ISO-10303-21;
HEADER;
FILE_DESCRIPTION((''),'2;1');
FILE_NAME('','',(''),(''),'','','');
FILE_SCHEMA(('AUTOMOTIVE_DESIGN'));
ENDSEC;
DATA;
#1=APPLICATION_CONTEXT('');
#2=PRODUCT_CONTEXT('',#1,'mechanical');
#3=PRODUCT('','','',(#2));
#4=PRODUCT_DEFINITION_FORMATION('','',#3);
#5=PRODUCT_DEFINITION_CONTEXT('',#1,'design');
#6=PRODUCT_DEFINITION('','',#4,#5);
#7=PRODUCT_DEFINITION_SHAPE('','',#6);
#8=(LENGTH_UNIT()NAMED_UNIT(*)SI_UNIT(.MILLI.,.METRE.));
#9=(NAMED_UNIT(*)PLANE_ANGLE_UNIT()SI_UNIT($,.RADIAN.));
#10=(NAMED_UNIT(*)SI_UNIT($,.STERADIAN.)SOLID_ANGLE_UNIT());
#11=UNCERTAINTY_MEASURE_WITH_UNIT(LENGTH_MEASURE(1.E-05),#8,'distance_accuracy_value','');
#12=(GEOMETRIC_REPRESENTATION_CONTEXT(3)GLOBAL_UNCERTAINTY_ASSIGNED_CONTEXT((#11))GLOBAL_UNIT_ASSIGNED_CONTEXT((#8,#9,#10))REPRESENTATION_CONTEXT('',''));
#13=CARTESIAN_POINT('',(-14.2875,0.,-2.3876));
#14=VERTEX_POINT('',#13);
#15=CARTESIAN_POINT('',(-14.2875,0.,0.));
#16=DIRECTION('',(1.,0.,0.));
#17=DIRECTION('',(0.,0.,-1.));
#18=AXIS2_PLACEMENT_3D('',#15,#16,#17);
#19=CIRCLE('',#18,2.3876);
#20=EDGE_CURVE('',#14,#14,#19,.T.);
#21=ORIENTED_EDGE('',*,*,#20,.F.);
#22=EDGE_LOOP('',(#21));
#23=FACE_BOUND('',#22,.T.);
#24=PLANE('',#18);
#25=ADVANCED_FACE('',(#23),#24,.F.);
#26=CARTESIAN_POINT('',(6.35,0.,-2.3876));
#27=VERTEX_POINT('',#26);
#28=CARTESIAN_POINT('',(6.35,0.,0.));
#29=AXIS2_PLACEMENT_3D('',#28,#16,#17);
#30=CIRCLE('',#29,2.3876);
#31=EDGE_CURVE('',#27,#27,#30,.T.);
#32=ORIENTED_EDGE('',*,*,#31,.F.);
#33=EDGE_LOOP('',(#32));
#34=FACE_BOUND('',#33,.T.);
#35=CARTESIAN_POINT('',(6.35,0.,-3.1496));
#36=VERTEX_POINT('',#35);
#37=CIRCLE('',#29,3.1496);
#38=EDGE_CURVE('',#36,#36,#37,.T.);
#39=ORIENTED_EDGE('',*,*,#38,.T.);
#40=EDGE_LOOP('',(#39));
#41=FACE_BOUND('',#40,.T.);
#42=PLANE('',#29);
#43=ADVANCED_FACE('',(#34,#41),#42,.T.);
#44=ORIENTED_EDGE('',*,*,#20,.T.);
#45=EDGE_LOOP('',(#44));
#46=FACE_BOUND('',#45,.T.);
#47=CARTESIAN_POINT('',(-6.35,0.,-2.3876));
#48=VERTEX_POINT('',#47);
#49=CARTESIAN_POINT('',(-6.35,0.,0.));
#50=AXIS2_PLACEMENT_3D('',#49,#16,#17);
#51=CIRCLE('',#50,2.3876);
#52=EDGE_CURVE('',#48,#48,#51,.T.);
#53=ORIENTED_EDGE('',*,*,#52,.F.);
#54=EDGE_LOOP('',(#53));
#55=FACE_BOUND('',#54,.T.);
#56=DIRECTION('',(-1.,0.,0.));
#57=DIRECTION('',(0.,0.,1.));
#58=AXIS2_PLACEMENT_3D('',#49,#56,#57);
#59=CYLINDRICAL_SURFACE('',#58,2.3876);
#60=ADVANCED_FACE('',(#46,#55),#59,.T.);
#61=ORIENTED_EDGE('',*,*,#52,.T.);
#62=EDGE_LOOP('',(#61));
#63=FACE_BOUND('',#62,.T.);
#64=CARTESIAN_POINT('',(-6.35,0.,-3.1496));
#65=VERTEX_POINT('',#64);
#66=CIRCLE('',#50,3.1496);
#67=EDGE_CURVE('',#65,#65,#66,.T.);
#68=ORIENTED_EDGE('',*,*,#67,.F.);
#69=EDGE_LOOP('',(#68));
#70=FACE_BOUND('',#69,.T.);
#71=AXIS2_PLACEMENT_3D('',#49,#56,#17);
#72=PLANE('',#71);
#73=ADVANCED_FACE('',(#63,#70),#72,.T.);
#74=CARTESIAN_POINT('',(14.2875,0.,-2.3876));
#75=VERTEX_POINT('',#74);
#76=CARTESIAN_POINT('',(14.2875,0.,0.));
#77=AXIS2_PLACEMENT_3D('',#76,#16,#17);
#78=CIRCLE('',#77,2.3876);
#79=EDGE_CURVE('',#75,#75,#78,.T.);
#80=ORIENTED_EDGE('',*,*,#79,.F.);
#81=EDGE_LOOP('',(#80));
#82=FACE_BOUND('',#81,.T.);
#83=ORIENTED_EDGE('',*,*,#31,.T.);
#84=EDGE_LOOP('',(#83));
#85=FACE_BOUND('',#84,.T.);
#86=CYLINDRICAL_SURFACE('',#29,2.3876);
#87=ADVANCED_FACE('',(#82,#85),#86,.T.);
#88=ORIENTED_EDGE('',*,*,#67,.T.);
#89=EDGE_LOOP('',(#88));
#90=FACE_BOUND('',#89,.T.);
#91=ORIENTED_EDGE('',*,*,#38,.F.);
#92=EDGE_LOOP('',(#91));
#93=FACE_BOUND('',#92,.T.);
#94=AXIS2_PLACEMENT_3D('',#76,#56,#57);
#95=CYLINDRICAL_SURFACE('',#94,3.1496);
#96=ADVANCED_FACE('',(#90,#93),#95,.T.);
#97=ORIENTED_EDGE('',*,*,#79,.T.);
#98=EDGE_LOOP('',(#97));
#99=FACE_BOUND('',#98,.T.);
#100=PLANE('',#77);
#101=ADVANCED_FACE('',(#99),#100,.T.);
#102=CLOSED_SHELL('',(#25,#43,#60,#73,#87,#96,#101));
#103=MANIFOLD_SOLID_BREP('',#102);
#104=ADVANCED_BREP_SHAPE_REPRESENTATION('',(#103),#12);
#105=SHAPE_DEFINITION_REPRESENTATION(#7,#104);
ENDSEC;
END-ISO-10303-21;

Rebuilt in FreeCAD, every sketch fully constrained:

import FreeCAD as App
import Part
import Sketcher

V = App.Vector
Q = App.Units.Quantity

doc = App.newDocument("Part")
body = doc.addObject("PartDesign::Body", "Body")

# Sketch on YZ plane
sketch1 = doc.addObject("Sketcher::SketchObject", "Sketch")
body.addObject(sketch1)
sketch1.AttachmentSupport = (doc.YZ_Plane, [""])
sketch1.MapMode = "FlatFace"
sketch1.addGeometry(Part.Circle(V(0, 0, 0), V(0, 0, 1), 3.1), False)
sketch1.addConstraint([
    Sketcher.Constraint("Coincident", 0, 3, -1, 1),
    Sketcher.Constraint("Diameter", 0, Q("0.248 in")),
])
pad1 = doc.addObject("PartDesign::Pad", "Pad")
body.addObject(pad1)
pad1.Profile = sketch1
pad1.Length = Q("1.125 in")
pad1.Midplane = True

# Sketch on YZ plane
sketch2 = doc.addObject("Sketcher::SketchObject", "Sketch001")
body.addObject(sketch2)
sketch2.AttachmentSupport = (doc.YZ_Plane, [""])
sketch2.MapMode = "FlatFace"
sketch2.AttachmentOffset = App.Placement(V(0, 0, 0.5625 * 25.4), App.Rotation())
sketch2.addGeometry([
    Part.Circle(V(0, 0, 0), V(0, 0, 1), 3.1),
    Part.Circle(V(0, 0, 0), V(0, 0, 1), 2.4),
], False)
sketch2.addConstraint([
    Sketcher.Constraint("Coincident", 0, 3, -1, 1),
    Sketcher.Constraint("Coincident", 1, 3, -1, 1),
    Sketcher.Constraint("Diameter", 0, Q("0.248 in")),
    Sketcher.Constraint("Diameter", 1, Q("0.188 in")),
])
pocket1 = doc.addObject("PartDesign::Pocket", "Pocket")
body.addObject(pocket1)
pocket1.Profile = sketch2
pocket1.Length = Q("0.3125 in")
doc.recompute()

mirrored = doc.addObject("PartDesign::Mirrored", "Mirrored")
body.addObject(mirrored)
mirrored.Originals = [pocket1]
mirrored.MirrorPlane = (doc.YZ_Plane, [""])
body.Tip = mirrored

doc.recompute()
